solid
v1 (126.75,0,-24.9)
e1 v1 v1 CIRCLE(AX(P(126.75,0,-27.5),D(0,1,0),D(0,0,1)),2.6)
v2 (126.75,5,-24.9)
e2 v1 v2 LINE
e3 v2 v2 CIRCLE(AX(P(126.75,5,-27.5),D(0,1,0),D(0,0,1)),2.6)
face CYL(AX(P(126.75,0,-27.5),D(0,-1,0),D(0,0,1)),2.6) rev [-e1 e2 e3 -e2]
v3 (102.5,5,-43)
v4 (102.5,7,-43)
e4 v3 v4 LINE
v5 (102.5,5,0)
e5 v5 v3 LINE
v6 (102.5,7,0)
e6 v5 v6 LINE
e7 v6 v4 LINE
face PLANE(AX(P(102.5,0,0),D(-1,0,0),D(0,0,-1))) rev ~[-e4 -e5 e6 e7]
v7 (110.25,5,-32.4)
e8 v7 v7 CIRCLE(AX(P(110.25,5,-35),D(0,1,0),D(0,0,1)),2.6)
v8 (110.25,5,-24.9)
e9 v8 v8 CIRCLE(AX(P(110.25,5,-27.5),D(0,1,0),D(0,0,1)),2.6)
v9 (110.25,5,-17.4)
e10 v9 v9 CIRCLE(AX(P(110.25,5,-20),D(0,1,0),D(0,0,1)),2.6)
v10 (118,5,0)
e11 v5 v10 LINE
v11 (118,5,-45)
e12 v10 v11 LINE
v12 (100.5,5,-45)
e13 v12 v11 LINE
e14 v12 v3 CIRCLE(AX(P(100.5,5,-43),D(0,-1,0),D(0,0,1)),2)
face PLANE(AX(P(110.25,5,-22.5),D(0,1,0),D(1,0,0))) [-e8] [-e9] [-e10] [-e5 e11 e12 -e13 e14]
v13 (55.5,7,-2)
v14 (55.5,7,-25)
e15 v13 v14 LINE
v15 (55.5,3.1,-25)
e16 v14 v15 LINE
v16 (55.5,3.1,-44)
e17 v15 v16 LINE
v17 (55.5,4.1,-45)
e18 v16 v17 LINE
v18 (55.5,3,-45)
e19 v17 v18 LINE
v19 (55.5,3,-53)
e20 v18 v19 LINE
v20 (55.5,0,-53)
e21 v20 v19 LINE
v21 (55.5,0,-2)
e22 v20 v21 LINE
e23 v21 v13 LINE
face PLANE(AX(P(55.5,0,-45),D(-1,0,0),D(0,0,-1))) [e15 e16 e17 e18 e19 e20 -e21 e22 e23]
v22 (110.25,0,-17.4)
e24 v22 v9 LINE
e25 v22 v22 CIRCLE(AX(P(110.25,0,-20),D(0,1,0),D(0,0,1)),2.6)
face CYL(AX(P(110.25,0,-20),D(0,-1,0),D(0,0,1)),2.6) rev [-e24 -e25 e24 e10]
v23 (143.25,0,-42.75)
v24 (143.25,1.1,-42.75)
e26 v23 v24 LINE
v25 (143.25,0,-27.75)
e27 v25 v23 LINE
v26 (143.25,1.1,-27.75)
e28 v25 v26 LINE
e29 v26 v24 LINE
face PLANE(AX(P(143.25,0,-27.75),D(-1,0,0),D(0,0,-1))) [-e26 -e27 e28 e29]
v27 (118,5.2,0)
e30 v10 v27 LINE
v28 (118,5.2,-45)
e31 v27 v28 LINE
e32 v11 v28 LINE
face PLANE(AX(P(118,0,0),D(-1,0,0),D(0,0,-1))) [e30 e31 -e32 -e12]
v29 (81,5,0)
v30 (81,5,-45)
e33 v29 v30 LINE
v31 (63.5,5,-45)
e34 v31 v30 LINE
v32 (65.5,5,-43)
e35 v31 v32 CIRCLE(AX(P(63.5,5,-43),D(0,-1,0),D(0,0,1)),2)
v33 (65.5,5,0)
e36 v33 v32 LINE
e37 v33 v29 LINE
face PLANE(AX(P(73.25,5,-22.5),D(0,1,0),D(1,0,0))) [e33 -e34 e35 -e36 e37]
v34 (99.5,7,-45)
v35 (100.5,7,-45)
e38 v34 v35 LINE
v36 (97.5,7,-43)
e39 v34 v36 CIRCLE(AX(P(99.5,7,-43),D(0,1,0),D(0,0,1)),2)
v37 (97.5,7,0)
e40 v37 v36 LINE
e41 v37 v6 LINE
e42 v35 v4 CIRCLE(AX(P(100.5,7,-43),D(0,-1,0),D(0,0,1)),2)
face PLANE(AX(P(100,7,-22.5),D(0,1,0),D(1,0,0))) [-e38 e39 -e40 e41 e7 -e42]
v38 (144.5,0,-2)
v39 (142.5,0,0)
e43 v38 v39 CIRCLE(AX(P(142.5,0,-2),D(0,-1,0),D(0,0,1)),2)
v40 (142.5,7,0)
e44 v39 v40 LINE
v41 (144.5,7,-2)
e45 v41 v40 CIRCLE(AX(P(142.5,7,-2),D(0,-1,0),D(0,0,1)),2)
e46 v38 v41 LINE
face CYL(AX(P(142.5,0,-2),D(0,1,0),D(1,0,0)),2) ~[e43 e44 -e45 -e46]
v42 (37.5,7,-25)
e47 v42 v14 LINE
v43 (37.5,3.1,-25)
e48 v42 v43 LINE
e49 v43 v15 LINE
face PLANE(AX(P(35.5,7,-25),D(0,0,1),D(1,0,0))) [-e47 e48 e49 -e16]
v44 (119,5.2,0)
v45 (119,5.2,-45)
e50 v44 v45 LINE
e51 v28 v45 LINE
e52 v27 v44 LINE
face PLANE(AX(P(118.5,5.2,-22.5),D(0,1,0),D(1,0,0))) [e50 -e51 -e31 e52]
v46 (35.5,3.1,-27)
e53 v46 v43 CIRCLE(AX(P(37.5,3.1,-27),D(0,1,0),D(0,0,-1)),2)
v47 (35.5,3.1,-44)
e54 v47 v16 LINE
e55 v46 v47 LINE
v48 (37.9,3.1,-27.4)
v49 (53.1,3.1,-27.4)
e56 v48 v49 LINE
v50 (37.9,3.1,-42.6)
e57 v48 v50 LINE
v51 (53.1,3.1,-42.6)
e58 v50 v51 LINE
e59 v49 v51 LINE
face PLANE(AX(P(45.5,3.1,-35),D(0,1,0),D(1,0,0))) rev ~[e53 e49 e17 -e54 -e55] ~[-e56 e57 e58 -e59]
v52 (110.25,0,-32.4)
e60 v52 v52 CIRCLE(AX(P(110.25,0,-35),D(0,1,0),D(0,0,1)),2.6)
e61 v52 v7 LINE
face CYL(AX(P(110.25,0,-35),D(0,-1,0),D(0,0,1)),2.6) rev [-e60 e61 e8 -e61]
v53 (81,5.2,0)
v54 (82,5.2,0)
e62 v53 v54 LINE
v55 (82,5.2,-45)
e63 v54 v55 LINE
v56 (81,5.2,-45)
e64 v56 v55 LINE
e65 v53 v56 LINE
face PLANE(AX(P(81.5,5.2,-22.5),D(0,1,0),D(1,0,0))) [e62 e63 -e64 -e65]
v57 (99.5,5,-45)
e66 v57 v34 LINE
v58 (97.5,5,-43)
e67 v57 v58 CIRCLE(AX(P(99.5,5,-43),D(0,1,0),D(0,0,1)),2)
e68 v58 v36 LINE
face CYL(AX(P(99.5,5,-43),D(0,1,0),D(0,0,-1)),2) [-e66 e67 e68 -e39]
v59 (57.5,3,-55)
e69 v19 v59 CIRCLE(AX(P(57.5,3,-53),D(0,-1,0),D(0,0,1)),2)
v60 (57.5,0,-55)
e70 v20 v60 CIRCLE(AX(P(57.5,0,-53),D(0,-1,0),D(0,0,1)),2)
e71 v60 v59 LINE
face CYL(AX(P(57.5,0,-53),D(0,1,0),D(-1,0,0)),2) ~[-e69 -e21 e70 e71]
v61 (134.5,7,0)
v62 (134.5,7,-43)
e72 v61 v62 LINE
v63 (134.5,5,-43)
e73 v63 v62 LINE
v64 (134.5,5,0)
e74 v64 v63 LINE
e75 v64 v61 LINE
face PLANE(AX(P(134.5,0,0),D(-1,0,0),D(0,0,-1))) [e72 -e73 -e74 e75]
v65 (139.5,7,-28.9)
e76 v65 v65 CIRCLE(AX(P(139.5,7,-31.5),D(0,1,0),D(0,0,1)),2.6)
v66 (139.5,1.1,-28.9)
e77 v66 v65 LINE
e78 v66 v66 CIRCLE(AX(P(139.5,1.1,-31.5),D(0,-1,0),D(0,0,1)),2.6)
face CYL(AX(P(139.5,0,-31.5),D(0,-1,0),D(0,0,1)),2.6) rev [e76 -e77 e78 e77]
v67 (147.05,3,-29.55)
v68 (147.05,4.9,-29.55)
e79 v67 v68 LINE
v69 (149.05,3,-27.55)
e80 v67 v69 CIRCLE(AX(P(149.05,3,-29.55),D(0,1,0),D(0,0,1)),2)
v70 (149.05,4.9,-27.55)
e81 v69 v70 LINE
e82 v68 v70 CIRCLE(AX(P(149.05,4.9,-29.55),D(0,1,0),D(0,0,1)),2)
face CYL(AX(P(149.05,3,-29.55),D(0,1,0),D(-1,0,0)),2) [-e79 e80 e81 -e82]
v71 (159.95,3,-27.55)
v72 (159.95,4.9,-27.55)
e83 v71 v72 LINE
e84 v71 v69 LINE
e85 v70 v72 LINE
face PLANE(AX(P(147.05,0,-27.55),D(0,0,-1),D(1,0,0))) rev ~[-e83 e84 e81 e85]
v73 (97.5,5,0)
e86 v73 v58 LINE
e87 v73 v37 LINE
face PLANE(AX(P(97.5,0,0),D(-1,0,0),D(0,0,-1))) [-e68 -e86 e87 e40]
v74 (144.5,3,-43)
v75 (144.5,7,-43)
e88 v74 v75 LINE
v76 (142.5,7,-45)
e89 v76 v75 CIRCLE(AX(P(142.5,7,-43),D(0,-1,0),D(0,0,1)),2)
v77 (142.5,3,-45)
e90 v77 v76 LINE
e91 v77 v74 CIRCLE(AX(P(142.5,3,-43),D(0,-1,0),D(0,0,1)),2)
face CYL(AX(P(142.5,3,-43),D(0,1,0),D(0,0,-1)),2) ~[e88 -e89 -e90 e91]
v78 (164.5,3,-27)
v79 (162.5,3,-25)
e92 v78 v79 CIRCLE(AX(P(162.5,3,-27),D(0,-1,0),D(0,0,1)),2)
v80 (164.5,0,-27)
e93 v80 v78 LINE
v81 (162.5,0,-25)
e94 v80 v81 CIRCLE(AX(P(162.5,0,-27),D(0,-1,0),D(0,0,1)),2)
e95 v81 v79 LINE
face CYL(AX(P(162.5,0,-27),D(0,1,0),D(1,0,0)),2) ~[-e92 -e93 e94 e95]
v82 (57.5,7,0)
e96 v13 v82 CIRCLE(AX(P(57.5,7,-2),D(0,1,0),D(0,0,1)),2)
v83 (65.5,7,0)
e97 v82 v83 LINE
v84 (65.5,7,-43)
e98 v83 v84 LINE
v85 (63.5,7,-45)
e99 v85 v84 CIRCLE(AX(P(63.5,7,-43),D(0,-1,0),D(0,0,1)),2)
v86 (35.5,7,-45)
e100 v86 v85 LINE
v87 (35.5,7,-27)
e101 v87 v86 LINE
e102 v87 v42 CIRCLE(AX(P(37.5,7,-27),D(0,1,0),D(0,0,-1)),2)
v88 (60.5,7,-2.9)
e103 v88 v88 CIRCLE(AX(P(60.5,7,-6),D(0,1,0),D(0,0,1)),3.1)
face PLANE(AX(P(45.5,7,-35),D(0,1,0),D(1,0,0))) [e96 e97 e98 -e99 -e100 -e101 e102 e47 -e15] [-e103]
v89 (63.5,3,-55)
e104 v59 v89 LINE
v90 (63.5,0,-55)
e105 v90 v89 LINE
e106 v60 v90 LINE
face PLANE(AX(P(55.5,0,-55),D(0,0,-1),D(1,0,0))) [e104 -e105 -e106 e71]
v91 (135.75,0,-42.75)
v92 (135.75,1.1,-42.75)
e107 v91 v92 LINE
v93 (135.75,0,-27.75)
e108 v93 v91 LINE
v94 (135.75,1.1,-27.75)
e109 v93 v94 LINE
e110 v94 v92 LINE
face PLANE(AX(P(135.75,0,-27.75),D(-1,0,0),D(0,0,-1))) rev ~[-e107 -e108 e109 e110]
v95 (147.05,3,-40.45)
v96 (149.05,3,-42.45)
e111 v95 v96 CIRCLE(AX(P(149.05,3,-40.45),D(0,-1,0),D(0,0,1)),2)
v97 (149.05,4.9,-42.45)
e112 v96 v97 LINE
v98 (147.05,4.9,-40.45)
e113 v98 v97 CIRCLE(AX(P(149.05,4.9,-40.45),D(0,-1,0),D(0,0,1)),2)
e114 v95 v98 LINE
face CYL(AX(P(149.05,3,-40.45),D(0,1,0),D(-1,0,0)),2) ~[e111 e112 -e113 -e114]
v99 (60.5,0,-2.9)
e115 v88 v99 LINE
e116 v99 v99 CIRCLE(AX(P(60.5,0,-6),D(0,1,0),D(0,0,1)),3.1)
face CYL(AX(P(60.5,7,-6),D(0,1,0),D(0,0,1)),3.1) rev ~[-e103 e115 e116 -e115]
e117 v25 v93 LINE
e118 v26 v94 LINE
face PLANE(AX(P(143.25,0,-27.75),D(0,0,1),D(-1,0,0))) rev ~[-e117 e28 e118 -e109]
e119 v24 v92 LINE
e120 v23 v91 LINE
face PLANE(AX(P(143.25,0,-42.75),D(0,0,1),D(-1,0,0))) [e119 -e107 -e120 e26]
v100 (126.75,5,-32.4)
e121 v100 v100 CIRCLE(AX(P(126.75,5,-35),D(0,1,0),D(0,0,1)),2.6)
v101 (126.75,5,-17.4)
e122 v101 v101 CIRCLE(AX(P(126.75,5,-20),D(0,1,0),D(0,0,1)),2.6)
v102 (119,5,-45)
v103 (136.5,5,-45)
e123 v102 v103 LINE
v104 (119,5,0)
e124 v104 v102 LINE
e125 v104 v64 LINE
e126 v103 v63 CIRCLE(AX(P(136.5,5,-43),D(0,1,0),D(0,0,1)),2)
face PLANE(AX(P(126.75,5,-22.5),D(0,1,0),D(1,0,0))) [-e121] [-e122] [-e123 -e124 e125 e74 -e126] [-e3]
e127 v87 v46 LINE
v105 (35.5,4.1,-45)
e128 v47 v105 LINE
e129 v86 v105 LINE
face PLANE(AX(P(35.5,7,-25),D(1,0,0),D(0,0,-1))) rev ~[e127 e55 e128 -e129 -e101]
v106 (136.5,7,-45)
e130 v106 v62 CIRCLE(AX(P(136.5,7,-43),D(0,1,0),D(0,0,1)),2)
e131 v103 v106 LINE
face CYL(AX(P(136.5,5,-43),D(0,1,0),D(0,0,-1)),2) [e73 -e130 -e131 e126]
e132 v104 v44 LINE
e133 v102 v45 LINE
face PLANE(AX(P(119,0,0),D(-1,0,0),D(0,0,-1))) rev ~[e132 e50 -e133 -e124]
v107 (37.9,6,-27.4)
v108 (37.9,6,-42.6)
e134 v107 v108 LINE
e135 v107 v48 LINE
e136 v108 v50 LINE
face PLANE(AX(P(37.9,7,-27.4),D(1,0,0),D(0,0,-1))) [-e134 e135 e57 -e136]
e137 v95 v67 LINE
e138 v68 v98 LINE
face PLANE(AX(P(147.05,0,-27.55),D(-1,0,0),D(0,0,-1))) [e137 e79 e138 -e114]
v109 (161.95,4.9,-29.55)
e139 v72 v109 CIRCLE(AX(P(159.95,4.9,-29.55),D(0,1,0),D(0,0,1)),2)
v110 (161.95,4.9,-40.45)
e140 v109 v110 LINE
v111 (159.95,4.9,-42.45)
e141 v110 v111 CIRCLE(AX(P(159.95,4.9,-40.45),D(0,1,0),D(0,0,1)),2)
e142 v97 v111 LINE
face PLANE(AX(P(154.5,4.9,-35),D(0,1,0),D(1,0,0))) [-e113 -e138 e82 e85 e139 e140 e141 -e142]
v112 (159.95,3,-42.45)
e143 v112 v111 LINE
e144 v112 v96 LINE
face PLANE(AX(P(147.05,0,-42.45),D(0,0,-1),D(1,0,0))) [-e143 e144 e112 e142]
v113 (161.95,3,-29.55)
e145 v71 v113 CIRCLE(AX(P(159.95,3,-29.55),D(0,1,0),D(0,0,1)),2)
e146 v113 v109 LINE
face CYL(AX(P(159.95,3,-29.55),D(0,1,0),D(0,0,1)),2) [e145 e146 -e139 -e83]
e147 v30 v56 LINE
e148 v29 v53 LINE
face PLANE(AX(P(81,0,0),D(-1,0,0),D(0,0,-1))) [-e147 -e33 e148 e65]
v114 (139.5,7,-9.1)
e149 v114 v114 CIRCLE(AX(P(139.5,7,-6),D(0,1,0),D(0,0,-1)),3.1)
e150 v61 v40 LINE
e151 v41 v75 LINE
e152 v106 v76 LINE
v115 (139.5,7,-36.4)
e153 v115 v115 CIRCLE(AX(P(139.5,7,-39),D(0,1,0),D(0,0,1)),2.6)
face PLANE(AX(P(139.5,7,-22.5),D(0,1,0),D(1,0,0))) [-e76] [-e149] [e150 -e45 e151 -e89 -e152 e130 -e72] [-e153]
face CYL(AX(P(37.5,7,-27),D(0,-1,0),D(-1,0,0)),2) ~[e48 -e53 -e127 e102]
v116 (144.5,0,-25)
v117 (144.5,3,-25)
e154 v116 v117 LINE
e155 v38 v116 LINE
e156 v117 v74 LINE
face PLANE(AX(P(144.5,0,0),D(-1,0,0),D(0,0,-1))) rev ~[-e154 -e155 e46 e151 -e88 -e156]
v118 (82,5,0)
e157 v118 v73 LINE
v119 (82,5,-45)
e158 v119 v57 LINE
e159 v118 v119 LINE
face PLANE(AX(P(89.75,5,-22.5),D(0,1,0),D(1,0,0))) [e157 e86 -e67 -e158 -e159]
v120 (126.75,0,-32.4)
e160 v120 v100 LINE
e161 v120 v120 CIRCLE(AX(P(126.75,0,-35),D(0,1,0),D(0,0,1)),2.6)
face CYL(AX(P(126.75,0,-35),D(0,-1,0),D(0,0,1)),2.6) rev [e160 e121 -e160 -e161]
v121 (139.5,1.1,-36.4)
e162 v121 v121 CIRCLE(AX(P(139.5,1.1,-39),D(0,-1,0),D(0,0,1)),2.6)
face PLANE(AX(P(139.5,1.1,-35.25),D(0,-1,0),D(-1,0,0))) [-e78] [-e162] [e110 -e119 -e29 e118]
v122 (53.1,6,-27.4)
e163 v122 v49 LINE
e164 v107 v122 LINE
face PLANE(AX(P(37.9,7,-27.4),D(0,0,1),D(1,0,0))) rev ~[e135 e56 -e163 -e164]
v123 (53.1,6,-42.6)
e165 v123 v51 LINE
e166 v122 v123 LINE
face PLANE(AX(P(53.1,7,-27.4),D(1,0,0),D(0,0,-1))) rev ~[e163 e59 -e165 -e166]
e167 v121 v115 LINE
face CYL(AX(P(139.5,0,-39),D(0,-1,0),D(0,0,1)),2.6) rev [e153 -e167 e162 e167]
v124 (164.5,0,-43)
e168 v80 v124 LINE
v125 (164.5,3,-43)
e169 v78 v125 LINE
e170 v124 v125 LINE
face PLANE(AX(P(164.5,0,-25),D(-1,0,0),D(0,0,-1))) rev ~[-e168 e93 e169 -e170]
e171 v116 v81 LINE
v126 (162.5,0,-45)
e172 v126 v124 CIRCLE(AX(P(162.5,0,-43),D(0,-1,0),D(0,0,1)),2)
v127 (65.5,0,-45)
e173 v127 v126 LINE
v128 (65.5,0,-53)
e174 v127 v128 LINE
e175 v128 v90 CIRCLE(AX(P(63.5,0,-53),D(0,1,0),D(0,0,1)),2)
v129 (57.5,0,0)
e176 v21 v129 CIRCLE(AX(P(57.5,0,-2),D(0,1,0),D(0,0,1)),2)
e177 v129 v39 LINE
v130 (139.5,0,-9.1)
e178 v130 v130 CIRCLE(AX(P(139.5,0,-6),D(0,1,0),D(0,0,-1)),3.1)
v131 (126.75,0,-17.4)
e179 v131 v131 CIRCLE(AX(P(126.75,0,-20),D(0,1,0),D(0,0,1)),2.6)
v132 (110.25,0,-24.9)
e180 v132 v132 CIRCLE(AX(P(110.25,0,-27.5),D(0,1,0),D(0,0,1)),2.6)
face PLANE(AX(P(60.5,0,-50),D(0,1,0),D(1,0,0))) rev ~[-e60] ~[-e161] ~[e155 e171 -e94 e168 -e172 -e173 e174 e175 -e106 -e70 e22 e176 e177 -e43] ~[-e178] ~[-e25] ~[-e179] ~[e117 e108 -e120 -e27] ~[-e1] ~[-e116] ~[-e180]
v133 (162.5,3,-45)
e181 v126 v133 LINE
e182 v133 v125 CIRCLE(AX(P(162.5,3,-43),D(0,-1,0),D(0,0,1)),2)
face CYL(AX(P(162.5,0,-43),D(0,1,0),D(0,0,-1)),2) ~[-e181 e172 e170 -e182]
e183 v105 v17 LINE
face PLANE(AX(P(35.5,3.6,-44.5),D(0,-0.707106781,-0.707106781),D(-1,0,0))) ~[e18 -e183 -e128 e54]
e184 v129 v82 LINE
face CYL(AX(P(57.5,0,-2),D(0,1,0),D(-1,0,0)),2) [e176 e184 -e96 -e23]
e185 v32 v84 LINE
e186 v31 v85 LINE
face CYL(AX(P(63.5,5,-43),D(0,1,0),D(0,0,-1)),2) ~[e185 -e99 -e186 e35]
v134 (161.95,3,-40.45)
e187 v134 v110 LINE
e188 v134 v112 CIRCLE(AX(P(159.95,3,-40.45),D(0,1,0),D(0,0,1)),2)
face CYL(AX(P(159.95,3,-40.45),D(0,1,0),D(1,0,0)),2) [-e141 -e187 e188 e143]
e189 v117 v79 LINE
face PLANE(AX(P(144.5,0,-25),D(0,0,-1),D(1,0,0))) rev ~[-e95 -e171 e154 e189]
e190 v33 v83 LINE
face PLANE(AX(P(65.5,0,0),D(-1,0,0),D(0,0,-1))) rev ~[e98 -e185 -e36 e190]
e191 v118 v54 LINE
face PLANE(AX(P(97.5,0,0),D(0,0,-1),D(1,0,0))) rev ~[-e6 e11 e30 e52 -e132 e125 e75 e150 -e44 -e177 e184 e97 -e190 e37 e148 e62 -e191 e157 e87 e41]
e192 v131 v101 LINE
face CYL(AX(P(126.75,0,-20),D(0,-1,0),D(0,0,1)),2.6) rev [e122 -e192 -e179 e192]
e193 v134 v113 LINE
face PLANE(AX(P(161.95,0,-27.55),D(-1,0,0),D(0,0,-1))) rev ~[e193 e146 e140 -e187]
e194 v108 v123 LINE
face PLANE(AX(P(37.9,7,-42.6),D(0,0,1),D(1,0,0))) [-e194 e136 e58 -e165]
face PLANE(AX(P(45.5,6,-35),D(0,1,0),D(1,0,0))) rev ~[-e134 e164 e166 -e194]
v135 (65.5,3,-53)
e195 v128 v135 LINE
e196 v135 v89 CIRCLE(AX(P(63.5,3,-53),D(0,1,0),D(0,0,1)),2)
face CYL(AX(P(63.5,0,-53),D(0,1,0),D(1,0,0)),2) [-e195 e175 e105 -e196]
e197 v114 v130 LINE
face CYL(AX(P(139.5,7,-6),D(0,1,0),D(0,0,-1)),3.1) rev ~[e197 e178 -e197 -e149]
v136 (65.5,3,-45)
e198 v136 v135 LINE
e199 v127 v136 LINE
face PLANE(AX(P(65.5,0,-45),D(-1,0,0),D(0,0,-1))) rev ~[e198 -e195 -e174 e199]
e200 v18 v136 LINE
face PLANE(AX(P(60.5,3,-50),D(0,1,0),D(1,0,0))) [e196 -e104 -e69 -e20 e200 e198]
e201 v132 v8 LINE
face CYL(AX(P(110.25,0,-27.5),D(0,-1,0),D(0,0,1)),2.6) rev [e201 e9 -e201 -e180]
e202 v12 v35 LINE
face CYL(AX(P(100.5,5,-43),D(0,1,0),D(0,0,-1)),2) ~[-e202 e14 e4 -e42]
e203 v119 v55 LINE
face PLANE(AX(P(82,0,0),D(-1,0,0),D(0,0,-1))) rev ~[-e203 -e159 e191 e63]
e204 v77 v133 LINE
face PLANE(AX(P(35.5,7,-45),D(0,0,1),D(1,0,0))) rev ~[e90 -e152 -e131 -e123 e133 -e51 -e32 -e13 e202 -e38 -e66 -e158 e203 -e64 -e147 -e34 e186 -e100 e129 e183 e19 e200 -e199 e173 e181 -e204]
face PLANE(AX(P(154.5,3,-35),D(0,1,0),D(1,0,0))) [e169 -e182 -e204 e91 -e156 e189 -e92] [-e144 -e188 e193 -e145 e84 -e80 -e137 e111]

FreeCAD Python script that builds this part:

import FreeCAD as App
import Part
import Sketcher
Q = App.Units.Quantity


def edges_at(feature, points):
    """Names of the edges that pass closest to the given points."""
    edges = feature.Shape.Edges
    near = lambda p: min(range(len(edges)), key=lambda i: edges[i].distToShape(Part.Vertex(*p))[0])
    return sorted({f"Edge{near(p) + 1}" for p in points})

doc = App.newDocument("Part")
params = doc.addObject("Spreadsheet::Sheet", "Params")
for row, (alias, value) in enumerate([
    ("sketch1_height", "45 mm"),
    ("sketch1_width", "15.5 mm"),
    ("pad1_length", "5 mm"),
    ("sketch2_height", "45 mm"),
    ("sketch2_width", "15.5 mm"),
    ("pad2_length", "5 mm"),
    ("sketch3_diameter", "5.2 mm"),
    ("sketch3_height", "45 mm"),
    ("sketch3_width", "15.5 mm"),
    ("pad3_length", "5 mm"),
    ("sketch4_diameter", "5.2 mm"),
    ("sketch4_height", "45 mm"),
    ("sketch4_width", "15.5 mm"),
    ("pad4_length", "5 mm"),
    ("sketch5_width", "1 mm"),
    ("sketch5_height", "45 mm"),
    ("pad5_length", "5.2 mm"),
    ("sketch6_diameter", "5.2 mm"),
    ("sketch6_width", "5 mm"),
    ("sketch6_width2", "10 mm"),
    ("sketch6_height", "45 mm"),
    ("pad6_length", "7 mm"),
    ("sketch7_height", "15 mm"),
    ("sketch7_width", "7.5 mm"),
    ("pocket1_length", "1.1 mm"),
    ("sketch8_diameter", "6.2 mm"),
    ("sketch9_width", "20 mm"),
    ("pad7_length", "3 mm"),
    ("sketch10_width", "14.9 mm"),
    ("pad8_length", "4.9 mm"),
    ("sketch11_width", "20 mm"),
    ("sketch11_width2", "15.2 mm"),
    ("pad9_length", "3.9 mm"),
    ("sketch12_width", "15.2 mm"),
    ("pad10_length", "1 mm"),
    ("fillet_radius", "2 mm"),
    ("sketch13_width", "10 mm"),
    ("pad11_length", "3 mm"),
    ("fillet2_radius", "2 mm"),
    ("chamfer_size", "1 mm"),
], start=1):
    params.set(f"A{row}", alias)
    params.set(f"B{row}", "=" + value)
    params.setAlias(f"B{row}", alias)

body = doc.addObject("PartDesign::Body", "Body")

# Sketch on XZ plane
sketch1 = doc.addObject("Sketcher::SketchObject", "Sketch")
body.addObject(sketch1)
sketch1.AttachmentSupport = (doc.XZ_Plane, [""])
sketch1.MapMode = "FlatFace"
sketch1.addGeometry(Part.LineSegment(App.Vector(66, -45, 0), App.Vector(66, 0, 0)), False)
sketch1.addGeometry(Part.LineSegment(App.Vector(66, 0, 0), App.Vector(81, 0, 0)), False)
sketch1.addGeometry(Part.LineSegment(App.Vector(81, 0, 0), App.Vector(81, -45, 0)), False)
sketch1.addGeometry(Part.LineSegment(App.Vector(81, -45, 0), App.Vector(66, -45, 0)), False)
sketch1.addConstraint(Sketcher.Constraint("Coincident", 0, 2, 1, 1))
sketch1.addConstraint(Sketcher.Constraint("Coincident", 1, 2, 2, 1))
sketch1.addConstraint(Sketcher.Constraint("Coincident", 2, 2, 3, 1))
sketch1.addConstraint(Sketcher.Constraint("Coincident", 3, 2, 0, 1))
sketch1.addConstraint(Sketcher.Constraint("Vertical", 0))
sketch1.addConstraint(Sketcher.Constraint("Horizontal", 1))
sketch1.addConstraint(Sketcher.Constraint("Vertical", 2))
sketch1.addConstraint(Sketcher.Constraint("Horizontal", 3))
sketch1.addConstraint(Sketcher.Constraint("PointOnObject", 0, 2, -1))
sketch1.addConstraint(Sketcher.Constraint("DistanceY", 0, 1, 0, 2, Q("45 mm")))
sketch1.addConstraint(Sketcher.Constraint("DistanceX", 1, 1, 1, 2, Q("15.5 mm")))
sketch1.addConstraint(Sketcher.Constraint("DistanceX", -1, 1, 1, 2, Q("81 mm")))
sketch1.setExpression("Constraints[9]", "Params.sketch1_height")
sketch1.setExpression("Constraints[10]", "Params.sketch1_width")
pad1 = doc.addObject("PartDesign::Pad", "Pad")
body.addObject(pad1)
pad1.Profile = sketch1
pad1.setExpression("Length", "Params.pad1_length")
pad1.Reversed = True
body2 = doc.addObject("PartDesign::Body", "Body001")

# Sketch on XZ plane
sketch2 = doc.addObject("Sketcher::SketchObject", "Sketch001")
body2.addObject(sketch2)
sketch2.AttachmentSupport = (doc.getObject("XZ_Plane001"), [""])
sketch2.MapMode = "FlatFace"
sketch2.addGeometry(Part.LineSegment(App.Vector(82, -45, 0), App.Vector(82, 0, 0)), False)
sketch2.addGeometry(Part.LineSegment(App.Vector(82, 0, 0), App.Vector(98, 0, 0)), False)
sketch2.addGeometry(Part.LineSegment(App.Vector(98, 0, 0), App.Vector(98, -45, 0)), False)
sketch2.addGeometry(Part.LineSegment(App.Vector(98, -45, 0), App.Vector(82, -45, 0)), False)
sketch2.addConstraint(Sketcher.Constraint("Coincident", 0, 2, 1, 1))
sketch2.addConstraint(Sketcher.Constraint("Coincident", 1, 2, 2, 1))
sketch2.addConstraint(Sketcher.Constraint("Coincident", 2, 2, 3, 1))
sketch2.addConstraint(Sketcher.Constraint("Coincident", 3, 2, 0, 1))
sketch2.addConstraint(Sketcher.Constraint("Vertical", 0))
sketch2.addConstraint(Sketcher.Constraint("Horizontal", 1))
sketch2.addConstraint(Sketcher.Constraint("Vertical", 2))
sketch2.addConstraint(Sketcher.Constraint("Horizontal", 3))
sketch2.addConstraint(Sketcher.Constraint("PointOnObject", 0, 2, -1))
sketch2.addConstraint(Sketcher.Constraint("DistanceY", 0, 1, 0, 2, Q("45 mm")))
sketch2.addConstraint(Sketcher.Constraint("DistanceX", 1, 1, 1, 2, Q("15.5 mm")))
sketch2.addConstraint(Sketcher.Constraint("DistanceX", -1, 1, 0, 2, Q("82 mm")))
sketch2.setExpression("Constraints[9]", "Params.sketch2_height")
sketch2.setExpression("Constraints[10]", "Params.sketch2_width")
pad2 = doc.addObject("PartDesign::Pad", "Pad001")
body2.addObject(pad2)
pad2.Profile = sketch2
pad2.setExpression("Length", "Params.pad2_length")
pad2.Reversed = True
body3 = doc.addObject("PartDesign::Body", "Body002")

# Sketch on XZ plane
sketch3 = doc.addObject("Sketcher::SketchObject", "Sketch002")
body3.addObject(sketch3)
sketch3.AttachmentSupport = (doc.getObject("XZ_Plane002"), [""])
sketch3.MapMode = "FlatFace"
sketch3.addGeometry(Part.LineSegment(App.Vector(102.5, -45, 0), App.Vector(102.5, 0, 0)), False)
sketch3.addGeometry(Part.LineSegment(App.Vector(102.5, 0, 0), App.Vector(118, 0, 0)), False)
sketch3.addGeometry(Part.LineSegment(App.Vector(118, 0, 0), App.Vector(118, -45, 0)), False)
sketch3.addGeometry(Part.LineSegment(App.Vector(118, -45, 0), App.Vector(102.5, -45, 0)), False)
sketch3.addGeometry(Part.Circle(App.Vector(110.2, -20, 0), App.Vector(0, 0, 1), 2.6), False)
sketch3.addGeometry(Part.Circle(App.Vector(110.2, -27.5, 0), App.Vector(0, 0, 1), 2.6), False)
sketch3.addGeometry(Part.Circle(App.Vector(110.2, -35, 0), App.Vector(0, 0, 1), 2.6), False)
sketch3.addConstraint(Sketcher.Constraint("Coincident", 0, 2, 1, 1))
sketch3.addConstraint(Sketcher.Constraint("Coincident", 1, 2, 2, 1))
sketch3.addConstraint(Sketcher.Constraint("Coincident", 2, 2, 3, 1))
sketch3.addConstraint(Sketcher.Constraint("Coincident", 3, 2, 0, 1))
sketch3.addConstraint(Sketcher.Constraint("Vertical", 0))
sketch3.addConstraint(Sketcher.Constraint("Horizontal", 1))
sketch3.addConstraint(Sketcher.Constraint("Vertical", 2))
sketch3.addConstraint(Sketcher.Constraint("Horizontal", 3))
sketch3.addConstraint(Sketcher.Constraint("Equal", 4, 5))
sketch3.addConstraint(Sketcher.Constraint("Equal", 5, 6))
sketch3.addConstraint(Sketcher.Constraint("PointOnObject", 0, 2, -1))
sketch3.addConstraint(Sketcher.Constraint("Vertical", 4, 3, 5, 3))
sketch3.addConstraint(Sketcher.Constraint("Vertical", 5, 3, 6, 3))
sketch3.addConstraint(Sketcher.Constraint("Diameter", 4, Q("5.2 mm")))
sketch3.addConstraint(Sketcher.Constraint("DistanceY", 0, 1, 0, 2, Q("45 mm")))
sketch3.addConstraint(Sketcher.Constraint("DistanceX", 1, 1, 1, 2, Q("15.5 mm")))
sketch3.addConstraint(Sketcher.Constraint("DistanceY", 4, 3, -1, 1, Q("20 mm")))
sketch3.addConstraint(Sketcher.Constraint("DistanceY", 6, 3, -1, 1, Q("35 mm")))
sketch3.addConstraint(Sketcher.Constraint("DistanceX", -1, 1, 1, 2, Q("118 mm")))
sketch3.addConstraint(Sketcher.Constraint("DistanceY", 5, 3, -1, 1, Q("27.5 mm")))
sketch3.addConstraint(Sketcher.Constraint("DistanceX", -1, 1, 4, 3, Q("110.25 mm")))
sketch3.setExpression("Constraints[13]", "Params.sketch3_diameter")
sketch3.setExpression("Constraints[14]", "Params.sketch3_height")
sketch3.setExpression("Constraints[15]", "Params.sketch3_width")
pad3 = doc.addObject("PartDesign::Pad", "Pad002")
body3.addObject(pad3)
pad3.Profile = sketch3
pad3.setExpression("Length", "Params.pad3_length")
pad3.Reversed = True
body4 = doc.addObject("PartDesign::Body", "Body003")

# Sketch on XZ plane
sketch4 = doc.addObject("Sketcher::SketchObject", "Sketch003")
body4.addObject(sketch4)
sketch4.AttachmentSupport = (doc.getObject("XZ_Plane003"), [""])
sketch4.MapMode = "FlatFace"
sketch4.addGeometry(Part.LineSegment(App.Vector(119, -45, 0), App.Vector(119, 0, 0)), False)
sketch4.addGeometry(Part.LineSegment(App.Vector(119, 0, 0), App.Vector(134.5, 0, 0)), False)
sketch4.addGeometry(Part.LineSegment(App.Vector(134.5, 0, 0), App.Vector(134.5, -45, 0)), False)
sketch4.addGeometry(Part.LineSegment(App.Vector(134.5, -45, 0), App.Vector(119, -45, 0)), False)
sketch4.addGeometry(Part.Circle(App.Vector(126.8, -20, 0), App.Vector(0, 0, 1), 2.6), False)
sketch4.addGeometry(Part.Circle(App.Vector(126.8, -27.5, 0), App.Vector(0, 0, 1), 2.6), False)
sketch4.addGeometry(Part.Circle(App.Vector(126.8, -35, 0), App.Vector(0, 0, 1), 2.6), False)
sketch4.addConstraint(Sketcher.Constraint("Coincident", 0, 2, 1, 1))
sketch4.addConstraint(Sketcher.Constraint("Coincident", 1, 2, 2, 1))
sketch4.addConstraint(Sketcher.Constraint("Coincident", 2, 2, 3, 1))
sketch4.addConstraint(Sketcher.Constraint("Coincident", 3, 2, 0, 1))
sketch4.addConstraint(Sketcher.Constraint("Vertical", 0))
sketch4.addConstraint(Sketcher.Constraint("Horizontal", 1))
sketch4.addConstraint(Sketcher.Constraint("Vertical", 2))
sketch4.addConstraint(Sketcher.Constraint("Horizontal", 3))
sketch4.addConstraint(Sketcher.Constraint("Equal", 4, 5))
sketch4.addConstraint(Sketcher.Constraint("Equal", 5, 6))
sketch4.addConstraint(Sketcher.Constraint("PointOnObject", 0, 2, -1))
sketch4.addConstraint(Sketcher.Constraint("Vertical", 4, 3, 5, 3))
sketch4.addConstraint(Sketcher.Constraint("Vertical", 5, 3, 6, 3))
sketch4.addConstraint(Sketcher.Constraint("Diameter", 4, Q("5.2 mm")))
sketch4.addConstraint(Sketcher.Constraint("DistanceY", 0, 1, 0, 2, Q("45 mm")))
sketch4.addConstraint(Sketcher.Constraint("DistanceX", 1, 1, 1, 2, Q("15.5 mm")))
sketch4.addConstraint(Sketcher.Constraint("DistanceY", 4, 3, -1, 1, Q("20 mm")))
sketch4.addConstraint(Sketcher.Constraint("DistanceY", 6, 3, -1, 1, Q("35 mm")))
sketch4.addConstraint(Sketcher.Constraint("DistanceX", -1, 1, 0, 2, Q("119 mm")))
sketch4.addConstraint(Sketcher.Constraint("DistanceY", 5, 3, -1, 1, Q("27.5 mm")))
sketch4.addConstraint(Sketcher.Constraint("DistanceX", -1, 1, 4, 3, Q("126.75 mm")))
sketch4.setExpression("Constraints[13]", "Params.sketch4_diameter")
sketch4.setExpression("Constraints[14]", "Params.sketch4_height")
sketch4.setExpression("Constraints[15]", "Params.sketch4_width")
pad4 = doc.addObject("PartDesign::Pad", "Pad003")
body4.addObject(pad4)
pad4.Profile = sketch4
pad4.setExpression("Length", "Params.pad4_length")
pad4.Reversed = True
body.AllowCompound = True
doc.recompute()

boolean = doc.addObject("PartDesign::Boolean", "Boolean")
body.addObject(boolean)
boolean.Type = "Fuse"
boolean.addObjects([body2])
doc.recompute()

boolean2 = doc.addObject("PartDesign::Boolean", "Boolean001")
body.addObject(boolean2)
boolean2.Type = "Fuse"
boolean2.addObjects([body3])
doc.recompute()

boolean3 = doc.addObject("PartDesign::Boolean", "Boolean002")
body.addObject(boolean3)
boolean3.Type = "Fuse"
boolean3.addObjects([body4])

# Sketch on XZ plane
sketch5 = doc.addObject("Sketcher::SketchObject", "Sketch004")
body.addObject(sketch5)
sketch5.AttachmentSupport = (doc.XZ_Plane, [""])
sketch5.MapMode = "FlatFace"
sketch5.addGeometry(Part.LineSegment(App.Vector(81, -45, 0), App.Vector(81, 0, 0)), False)
sketch5.addGeometry(Part.LineSegment(App.Vector(81, 0, 0), App.Vector(82, 0, 0)), False)
sketch5.addGeometry(Part.LineSegment(App.Vector(82, 0, 0), App.Vector(82, -45, 0)), False)
sketch5.addGeometry(Part.LineSegment(App.Vector(82, -45, 0), App.Vector(81, -45, 0)), False)
sketch5.addGeometry(Part.LineSegment(App.Vector(118, -45, 0), App.Vector(118, 0, 0)), False)
sketch5.addGeometry(Part.LineSegment(App.Vector(118, 0, 0), App.Vector(119, 0, 0)), False)
sketch5.addGeometry(Part.LineSegment(App.Vector(119, 0, 0), App.Vector(119, -45, 0)), False)
sketch5.addGeometry(Part.LineSegment(App.Vector(119, -45, 0), App.Vector(118, -45, 0)), False)
sketch5.addConstraint(Sketcher.Constraint("Coincident", 0, 2, 1, 1))
sketch5.addConstraint(Sketcher.Constraint("Coincident", 1, 2, 2, 1))
sketch5.addConstraint(Sketcher.Constraint("Coincident", 2, 2, 3, 1))
sketch5.addConstraint(Sketcher.Constraint("Coincident", 3, 2, 0, 1))
sketch5.addConstraint(Sketcher.Constraint("Coincident", 4, 2, 5, 1))
sketch5.addConstraint(Sketcher.Constraint("Coincident", 5, 2, 6, 1))
sketch5.addConstraint(Sketcher.Constraint("Coincident", 6, 2, 7, 1))
sketch5.addConstraint(Sketcher.Constraint("Coincident", 7, 2, 4, 1))
sketch5.addConstraint(Sketcher.Constraint("Vertical", 0))
sketch5.addConstraint(Sketcher.Constraint("Horizontal", 1))
sketch5.addConstraint(Sketcher.Constraint("Vertical", 2))
sketch5.addConstraint(Sketcher.Constraint("Horizontal", 3))
sketch5.addConstraint(Sketcher.Constraint("Vertical", 4))
sketch5.addConstraint(Sketcher.Constraint("Horizontal", 5))
sketch5.addConstraint(Sketcher.Constraint("Vertical", 6))
sketch5.addConstraint(Sketcher.Constraint("Horizontal", 7))
sketch5.addConstraint(Sketcher.Constraint("PointOnObject", 0, 2, -1))
sketch5.addConstraint(Sketcher.Constraint("PointOnObject", 4, 2, -1))
sketch5.addConstraint(Sketcher.Constraint("Horizontal", 3, 2, 6, 2))
sketch5.addConstraint(Sketcher.Constraint("Equal", 3, 5))
sketch5.addConstraint(Sketcher.Constraint("DistanceX", 1, 1, 1, 2, Q("1 mm")))
sketch5.addConstraint(Sketcher.Constraint("DistanceY", 0, 1, 0, 2, Q("45 mm")))
sketch5.addConstraint(Sketcher.Constraint("DistanceX", -1, 1, 0, 2, Q("81 mm")))
sketch5.addConstraint(Sketcher.Constraint("DistanceX", -1, 1, 4, 2, Q("118 mm")))
sketch5.setExpression("Constraints[20]", "Params.sketch5_width")
sketch5.setExpression("Constraints[21]", "Params.sketch5_height")
pad5 = doc.addObject("PartDesign::Pad", "Pad004")
body.addObject(pad5)
pad5.Profile = sketch5
pad5.setExpression("Length", "Params.pad5_length")
pad5.Reversed = True

# Sketch on XZ plane
sketch6 = doc.addObject("Sketcher::SketchObject", "Sketch005")
body.addObject(sketch6)
sketch6.AttachmentSupport = (doc.XZ_Plane, [""])
sketch6.MapMode = "FlatFace"
sketch6.addGeometry(Part.LineSegment(App.Vector(97.5, -45, 0), App.Vector(97.5, 0, 0)), False)
sketch6.addGeometry(Part.LineSegment(App.Vector(97.5, 0, 0), App.Vector(102.5, 0, 0)), False)
sketch6.addGeometry(Part.LineSegment(App.Vector(102.5, 0, 0), App.Vector(102.5, -45, 0)), False)
sketch6.addGeometry(Part.LineSegment(App.Vector(102.5, -45, 0), App.Vector(97.5, -45, 0)), False)
sketch6.addGeometry(Part.LineSegment(App.Vector(134.5, -45, 0), App.Vector(134.5, 0, 0)), False)
sketch6.addGeometry(Part.LineSegment(App.Vector(134.5, 0, 0), App.Vector(144.5, 0, 0)), False)
sketch6.addGeometry(Part.LineSegment(App.Vector(144.5, 0, 0), App.Vector(144.5, -45, 0)), False)
sketch6.addGeometry(Part.LineSegment(App.Vector(144.5, -45, 0), App.Vector(134.5, -45, 0)), False)
sketch6.addGeometry(Part.Circle(App.Vector(139.5, -31.5, 0), App.Vector(0, 0, 1), 2.6), False)
sketch6.addGeometry(Part.Circle(App.Vector(139.5, -39, 0), App.Vector(0, 0, 1), 2.6), False)
sketch6.addGeometry(Part.LineSegment(App.Vector(55.5, -45, 0), App.Vector(55.5, 0, 0)), False)
sketch6.addGeometry(Part.LineSegment(App.Vector(55.5, 0, 0), App.Vector(65.5, 0, 0)), False)
sketch6.addGeometry(Part.LineSegment(App.Vector(65.5, 0, 0), App.Vector(65.5, -45, 0)), False)
sketch6.addGeometry(Part.LineSegment(App.Vector(65.5, -45, 0), App.Vector(55.5, -45, 0)), False)
sketch6.addConstraint(Sketcher.Constraint("Coincident", 0, 2, 1, 1))
sketch6.addConstraint(Sketcher.Constraint("Coincident", 1, 2, 2, 1))
sketch6.addConstraint(Sketcher.Constraint("Coincident", 2, 2, 3, 1))
sketch6.addConstraint(Sketcher.Constraint("Coincident", 3, 2, 0, 1))
sketch6.addConstraint(Sketcher.Constraint("Coincident", 4, 2, 5, 1))
sketch6.addConstraint(Sketcher.Constraint("Coincident", 5, 2, 6, 1))
sketch6.addConstraint(Sketcher.Constraint("Coincident", 6, 2, 7, 1))
sketch6.addConstraint(Sketcher.Constraint("Coincident", 7, 2, 4, 1))
sketch6.addConstraint(Sketcher.Constraint("Coincident", 10, 2, 11, 1))
sketch6.addConstraint(Sketcher.Constraint("Coincident", 11, 2, 12, 1))
sketch6.addConstraint(Sketcher.Constraint("Coincident", 12, 2, 13, 1))
sketch6.addConstraint(Sketcher.Constraint("Coincident", 13, 2, 10, 1))
sketch6.addConstraint(Sketcher.Constraint("Vertical", 0))
sketch6.addConstraint(Sketcher.Constraint("Horizontal", 1))
sketch6.addConstraint(Sketcher.Constraint("Vertical", 2))
sketch6.addConstraint(Sketcher.Constraint("Horizontal", 3))
sketch6.addConstraint(Sketcher.Constraint("Vertical", 4))
sketch6.addConstraint(Sketcher.Constraint("Horizontal", 5))
sketch6.addConstraint(Sketcher.Constraint("Vertical", 6))
sketch6.addConstraint(Sketcher.Constraint("Horizontal", 7))
sketch6.addConstraint(Sketcher.Constraint("Vertical", 10))
sketch6.addConstraint(Sketcher.Constraint("Horizontal", 11))
sketch6.addConstraint(Sketcher.Constraint("Vertical", 12))
sketch6.addConstraint(Sketcher.Constraint("Horizontal", 13))
sketch6.addConstraint(Sketcher.Constraint("Equal", 8, 9))
sketch6.addConstraint(Sketcher.Constraint("PointOnObject", 0, 2, -1))
sketch6.addConstraint(Sketcher.Constraint("PointOnObject", 4, 2, -1))
sketch6.addConstraint(Sketcher.Constraint("PointOnObject", 10, 2, -1))
sketch6.addConstraint(Sketcher.Constraint("Horizontal", 3, 2, 6, 2))
sketch6.addConstraint(Sketcher.Constraint("Horizontal", 7, 2, 12, 2))
sketch6.addConstraint(Sketcher.Constraint("Vertical", 8, 3, 9, 3))
sketch6.addConstraint(Sketcher.Constraint("Equal", 7, 11))
sketch6.addConstraint(Sketcher.Constraint("Diameter", 8, Q("5.2 mm")))
sketch6.addConstraint(Sketcher.Constraint("DistanceX", 1, 1, 1, 2, Q("5 mm")))
sketch6.addConstraint(Sketcher.Constraint("DistanceX", 5, 1, 5, 2, Q("10 mm")))
sketch6.addConstraint(Sketcher.Constraint("DistanceY", 0, 1, 0, 2, Q("45 mm")))
sketch6.addConstraint(Sketcher.Constraint("DistanceY", 9, 3, -1, 1, Q("39 mm")))
sketch6.addConstraint(Sketcher.Constraint("DistanceX", 0, 2, 8, 3, Q("42 mm")))
sketch6.addConstraint(Sketcher.Constraint("DistanceX", 4, 2, 8, 3, Q("5 mm")))
sketch6.addConstraint(Sketcher.Constraint("DistanceX", 10, 2, 0, 2, Q("42 mm")))
sketch6.addConstraint(Sketcher.Constraint("DistanceX", -1, 1, 8, 3, Q("139.5 mm")))
sketch6.addConstraint(Sketcher.Constraint("DistanceY", 8, 3, -1, 1, Q("31.5 mm")))
sketch6.setExpression("Constraints[32]", "Params.sketch6_diameter")
sketch6.setExpression("Constraints[33]", "Params.sketch6_width")
sketch6.setExpression("Constraints[34]", "Params.sketch6_width2")
sketch6.setExpression("Constraints[35]", "Params.sketch6_height")
pad6 = doc.addObject("PartDesign::Pad", "Pad005")
body.addObject(pad6)
pad6.Profile = sketch6
pad6.setExpression("Length", "Params.pad6_length")
pad6.Reversed = True

# Sketch on XZ plane
sketch7 = doc.addObject("Sketcher::SketchObject", "Sketch006")
body.addObject(sketch7)
sketch7.AttachmentSupport = (doc.XZ_Plane, [""])
sketch7.MapMode = "FlatFace"
sketch7.addGeometry(Part.LineSegment(App.Vector(143, -43, 0), App.Vector(143, -28, 0)), False)
sketch7.addGeometry(Part.LineSegment(App.Vector(143, -28, 0), App.Vector(136, -28, 0)), False)
sketch7.addGeometry(Part.LineSegment(App.Vector(136, -28, 0), App.Vector(136, -43, 0)), False)
sketch7.addGeometry(Part.LineSegment(App.Vector(136, -43, 0), App.Vector(143, -43, 0)), False)
sketch7.addConstraint(Sketcher.Constraint("Coincident", 0, 2, 1, 1))
sketch7.addConstraint(Sketcher.Constraint("Coincident", 1, 2, 2, 1))
sketch7.addConstraint(Sketcher.Constraint("Coincident", 2, 2, 3, 1))
sketch7.addConstraint(Sketcher.Constraint("Coincident", 3, 2, 0, 1))
sketch7.addConstraint(Sketcher.Constraint("Vertical", 0))
sketch7.addConstraint(Sketcher.Constraint("Horizontal", 1))
sketch7.addConstraint(Sketcher.Constraint("Vertical", 2))
sketch7.addConstraint(Sketcher.Constraint("Horizontal", 3))
sketch7.addConstraint(Sketcher.Constraint("DistanceY", 0, 1, 0, 2, Q("15 mm")))
sketch7.addConstraint(Sketcher.Constraint("DistanceX", 1, 2, 1, 1, Q("7.5 mm")))
sketch7.addConstraint(Sketcher.Constraint("DistanceX", -1, 1, 0, 2, Q("143.25 mm")))
sketch7.addConstraint(Sketcher.Constraint("DistanceY", 0, 2, -1, 1, Q("27.75 mm")))
sketch7.setExpression("Constraints[8]", "Params.sketch7_height")
sketch7.setExpression("Constraints[9]", "Params.sketch7_width")
pocket1 = doc.addObject("PartDesign::Pocket", "Pocket")
body.addObject(pocket1)
pocket1.Profile = sketch7
pocket1.setExpression("Length", "Params.pocket1_length")

# Sketch on XZ plane
sketch8 = doc.addObject("Sketcher::SketchObject", "Sketch007")
body.addObject(sketch8)
sketch8.AttachmentSupport = (doc.XZ_Plane, [""])
sketch8.MapMode = "FlatFace"
sketch8.AttachmentOffset = App.Placement(App.Vector(0, 0, -7), App.Rotation())
sketch8.addGeometry(Part.Circle(App.Vector(60.5, -6, 0), App.Vector(0, 0, 1), 3.1), False)
sketch8.addGeometry(Part.Circle(App.Vector(139.5, -6, 0), App.Vector(0, 0, 1), 3.1), False)
sketch8.addConstraint(Sketcher.Constraint("Equal", 0, 1))
sketch8.addConstraint(Sketcher.Constraint("Horizontal", 0, 3, 1, 3))
sketch8.addConstraint(Sketcher.Constraint("Diameter", 0, Q("6.2 mm")))
sketch8.addConstraint(Sketcher.Constraint("DistanceY", 0, 3, -1, 1, Q("6 mm")))
sketch8.addConstraint(Sketcher.Constraint("DistanceX", 0, 3, 1, 3, Q("79 mm")))
sketch8.addConstraint(Sketcher.Constraint("DistanceX", -1, 1, 0, 3, Q("60.5 mm")))
sketch8.setExpression("Constraints[2]", "Params.sketch8_diameter")
pocket2 = doc.addObject("PartDesign::Pocket", "Pocket001")
body.addObject(pocket2)
pocket2.Profile = sketch8
pocket2.Type = "ThroughAll"
pocket2.Reversed = True

# Sketch on XZ plane
sketch9 = doc.addObject("Sketcher::SketchObject", "Sketch008")
body.addObject(sketch9)
sketch9.AttachmentSupport = (doc.XZ_Plane, [""])
sketch9.MapMode = "FlatFace"
sketch9.addGeometry(Part.LineSegment(App.Vector(144, -45, 0), App.Vector(144, -25, 0)), False)
sketch9.addGeometry(Part.LineSegment(App.Vector(144, -25, 0), App.Vector(164, -25, 0)), False)
sketch9.addGeometry(Part.LineSegment(App.Vector(164, -25, 0), App.Vector(164, -45, 0)), False)
sketch9.addGeometry(Part.LineSegment(App.Vector(164, -45, 0), App.Vector(144, -45, 0)), False)
sketch9.addConstraint(Sketcher.Constraint("Coincident", 0, 2, 1, 1))
sketch9.addConstraint(Sketcher.Constraint("Coincident", 1, 2, 2, 1))
sketch9.addConstraint(Sketcher.Constraint("Coincident", 2, 2, 3, 1))
sketch9.addConstraint(Sketcher.Constraint("Coincident", 3, 2, 0, 1))
sketch9.addConstraint(Sketcher.Constraint("Vertical", 0))
sketch9.addConstraint(Sketcher.Constraint("Horizontal", 1))
sketch9.addConstraint(Sketcher.Constraint("Vertical", 2))
sketch9.addConstraint(Sketcher.Constraint("Horizontal", 3))
sketch9.addConstraint(Sketcher.Constraint("Equal", 3, 0))
sketch9.addConstraint(Sketcher.Constraint("DistanceX", 1, 1, 1, 2, Q("20 mm")))
sketch9.addConstraint(Sketcher.Constraint("DistanceY", 0, 2, -1, 1, Q("25 mm")))
sketch9.addConstraint(Sketcher.Constraint("DistanceX", -1, 1, 0, 2, Q("144.5 mm")))
sketch9.setExpression("Constraints[9]", "Params.sketch9_width")
pad7 = doc.addObject("PartDesign::Pad", "Pad006")
body.addObject(pad7)
pad7.Profile = sketch9
pad7.setExpression("Length", "Params.pad7_length")
pad7.Reversed = True

# Sketch on XZ plane
sketch10 = doc.addObject("Sketcher::SketchObject", "Sketch009")
body.addObject(sketch10)
sketch10.AttachmentSupport = (doc.XZ_Plane, [""])
sketch10.MapMode = "FlatFace"
sketch10.addGeometry(Part.LineSegment(App.Vector(147, -42, 0), App.Vector(147, -28, 0)), False)
sketch10.addGeometry(Part.LineSegment(App.Vector(147, -28, 0), App.Vector(162, -28, 0)), False)
sketch10.addGeometry(Part.LineSegment(App.Vector(162, -28, 0), App.Vector(162, -42, 0)), False)
sketch10.addGeometry(Part.LineSegment(App.Vector(162, -42, 0), App.Vector(147, -42, 0)), False)
sketch10.addConstraint(Sketcher.Constraint("Coincident", 0, 2, 1, 1))
sketch10.addConstraint(Sketcher.Constraint("Coincident", 1, 2, 2, 1))
sketch10.addConstraint(Sketcher.Constraint("Coincident", 2, 2, 3, 1))
sketch10.addConstraint(Sketcher.Constraint("Coincident", 3, 2, 0, 1))
sketch10.addConstraint(Sketcher.Constraint("Vertical", 0))
sketch10.addConstraint(Sketcher.Constraint("Horizontal", 1))
sketch10.addConstraint(Sketcher.Constraint("Vertical", 2))
sketch10.addConstraint(Sketcher.Constraint("Horizontal", 3))
sketch10.addConstraint(Sketcher.Constraint("Equal", 3, 0))
sketch10.addConstraint(Sketcher.Constraint("DistanceX", 1, 1, 1, 2, Q("14.9 mm")))
sketch10.addConstraint(Sketcher.Constraint("DistanceX", -1, 1, 0, 2, Q("147.05 mm")))
sketch10.addConstraint(Sketcher.Constraint("DistanceY", 0, 2, -1, 1, Q("27.55 mm")))
sketch10.setExpression("Constraints[9]", "Params.sketch10_width")
pad8 = doc.addObject("PartDesign::Pad", "Pad007")
body.addObject(pad8)
pad8.Profile = sketch10
pad8.setExpression("Length", "Params.pad8_length")
pad8.Reversed = True

# Sketch on XZ plane
sketch11 = doc.addObject("Sketcher::SketchObject", "Sketch010")
body.addObject(sketch11)
sketch11.AttachmentSupport = (doc.XZ_Plane, [""])
sketch11.MapMode = "FlatFace"
sketch11.AttachmentOffset = App.Placement(App.Vector(0, 0, -7), App.Rotation())
sketch11.addGeometry(Part.LineSegment(App.Vector(36, -45, 0), App.Vector(36, -25, 0)), False)
sketch11.addGeometry(Part.LineSegment(App.Vector(36, -25, 0), App.Vector(56, -25, 0)), False)
sketch11.addGeometry(Part.LineSegment(App.Vector(56, -25, 0), App.Vector(56, -45, 0)), False)
sketch11.addGeometry(Part.LineSegment(App.Vector(56, -45, 0), App.Vector(36, -45, 0)), False)
sketch11.addGeometry(Part.LineSegment(App.Vector(53, -27, 0), App.Vector(38, -27, 0)), False)
sketch11.addGeometry(Part.LineSegment(App.Vector(38, -27, 0), App.Vector(38, -43, 0)), False)
sketch11.addGeometry(Part.LineSegment(App.Vector(38, -43, 0), App.Vector(53, -43, 0)), False)
sketch11.addGeometry(Part.LineSegment(App.Vector(53, -43, 0), App.Vector(53, -27, 0)), False)
sketch11.addConstraint(Sketcher.Constraint("Coincident", 0, 2, 1, 1))
sketch11.addConstraint(Sketcher.Constraint("Coincident", 1, 2, 2, 1))
sketch11.addConstraint(Sketcher.Constraint("Coincident", 2, 2, 3, 1))
sketch11.addConstraint(Sketcher.Constraint("Coincident", 3, 2, 0, 1))
sketch11.addConstraint(Sketcher.Constraint("Coincident", 4, 2, 5, 1))
sketch11.addConstraint(Sketcher.Constraint("Coincident", 5, 2, 6, 1))
sketch11.addConstraint(Sketcher.Constraint("Coincident", 6, 2, 7, 1))
sketch11.addConstraint(Sketcher.Constraint("Coincident", 7, 2, 4, 1))
sketch11.addConstraint(Sketcher.Constraint("Vertical", 0))
sketch11.addConstraint(Sketcher.Constraint("Horizontal", 1))
sketch11.addConstraint(Sketcher.Constraint("Vertical", 2))
sketch11.addConstraint(Sketcher.Constraint("Horizontal", 3))
sketch11.addConstraint(Sketcher.Constraint("Horizontal", 4))
sketch11.addConstraint(Sketcher.Constraint("Vertical", 5))
sketch11.addConstraint(Sketcher.Constraint("Horizontal", 6))
sketch11.addConstraint(Sketcher.Constraint("Vertical", 7))
sketch11.addConstraint(Sketcher.Constraint("Equal", 3, 0))
sketch11.addConstraint(Sketcher.Constraint("Equal", 6, 5))
sketch11.addConstraint(Sketcher.Constraint("DistanceX", 1, 1, 1, 2, Q("20 mm")))
sketch11.addConstraint(Sketcher.Constraint("DistanceX", 4, 2, 4, 1, Q("15.2 mm")))
sketch11.addConstraint(Sketcher.Constraint("DistanceY", 0, 2, -1, 1, Q("25 mm")))
sketch11.addConstraint(Sketcher.Constraint("DistanceX", -1, 1, 0, 2, Q("35.5 mm")))
sketch11.addConstraint(Sketcher.Constraint("DistanceX", -1, 1, 4, 2, Q("37.9 mm")))
sketch11.addConstraint(Sketcher.Constraint("DistanceY", 4, 2, -1, 1, Q("27.4 mm")))
sketch11.setExpression("Constraints[18]", "Params.sketch11_width")
sketch11.setExpression("Constraints[19]", "Params.sketch11_width2")
pad9 = doc.addObject("PartDesign::Pad", "Pad008")
body.addObject(pad9)
pad9.Profile = sketch11
pad9.setExpression("Length", "Params.pad9_length")

# Sketch on XZ plane
sketch12 = doc.addObject("Sketcher::SketchObject", "Sketch011")
body.addObject(sketch12)
sketch12.AttachmentSupport = (doc.XZ_Plane, [""])
sketch12.MapMode = "FlatFace"
sketch12.AttachmentOffset = App.Placement(App.Vector(0, 0, -7), App.Rotation())
sketch12.addGeometry(Part.LineSegment(App.Vector(38, -43, 0), App.Vector(38, -27, 0)), False)
sketch12.addGeometry(Part.LineSegment(App.Vector(38, -27, 0), App.Vector(53, -27, 0)), False)
sketch12.addGeometry(Part.LineSegment(App.Vector(53, -27, 0), App.Vector(53, -43, 0)), False)
sketch12.addGeometry(Part.LineSegment(App.Vector(53, -43, 0), App.Vector(38, -43, 0)), False)
sketch12.addConstraint(Sketcher.Constraint("Coincident", 0, 2, 1, 1))
sketch12.addConstraint(Sketcher.Constraint("Coincident", 1, 2, 2, 1))
sketch12.addConstraint(Sketcher.Constraint("Coincident", 2, 2, 3, 1))
sketch12.addConstraint(Sketcher.Constraint("Coincident", 3, 2, 0, 1))
sketch12.addConstraint(Sketcher.Constraint("Vertical", 0))
sketch12.addConstraint(Sketcher.Constraint("Horizontal", 1))
sketch12.addConstraint(Sketcher.Constraint("Vertical", 2))
sketch12.addConstraint(Sketcher.Constraint("Horizontal", 3))
sketch12.addConstraint(Sketcher.Constraint("Equal", 3, 0))
sketch12.addConstraint(Sketcher.Constraint("DistanceX", 1, 1, 1, 2, Q("15.2 mm")))
sketch12.addConstraint(Sketcher.Constraint("DistanceX", -1, 1, 0, 2, Q("37.9 mm")))
sketch12.addConstraint(Sketcher.Constraint("DistanceY", 0, 2, -1, 1, Q("27.4 mm")))
sketch12.setExpression("Constraints[9]", "Params.sketch12_width")
pad10 = doc.addObject("PartDesign::Pad", "Pad009")
body.addObject(pad10)
pad10.Profile = sketch12
pad10.setExpression("Length", "Params.pad10_length")
doc.recompute()

fillet = doc.addObject("PartDesign::Fillet", "Fillet")
body.addObject(fillet)
fillet.Base = (pad10, edges_at(pad10, [
    (161.95, 3.95, -42.45),
    (147.05, 3.95, -42.45),
    (147.05, 3.95, -27.55),
    (161.95, 3.95, -27.55),
]))
fillet.setExpression("Radius", "Params.fillet_radius")

# Sketch on XZ plane
sketch13 = doc.addObject("Sketcher::SketchObject", "Sketch012")
body.addObject(sketch13)
sketch13.AttachmentSupport = (doc.XZ_Plane, [""])
sketch13.MapMode = "FlatFace"
sketch13.addGeometry(Part.LineSegment(App.Vector(56, -55, 0), App.Vector(56, -45, 0)), False)
sketch13.addGeometry(Part.LineSegment(App.Vector(56, -45, 0), App.Vector(66, -45, 0)), False)
sketch13.addGeometry(Part.LineSegment(App.Vector(66, -45, 0), App.Vector(66, -55, 0)), False)
sketch13.addGeometry(Part.LineSegment(App.Vector(66, -55, 0), App.Vector(56, -55, 0)), False)
sketch13.addConstraint(Sketcher.Constraint("Coincident", 0, 2, 1, 1))
sketch13.addConstraint(Sketcher.Constraint("Coincident", 1, 2, 2, 1))
sketch13.addConstraint(Sketcher.Constraint("Coincident", 2, 2, 3, 1))
sketch13.addConstraint(Sketcher.Constraint("Coincident", 3, 2, 0, 1))
sketch13.addConstraint(Sketcher.Constraint("Vertical", 0))
sketch13.addConstraint(Sketcher.Constraint("Horizontal", 1))
sketch13.addConstraint(Sketcher.Constraint("Vertical", 2))
sketch13.addConstraint(Sketcher.Constraint("Horizontal", 3))
sketch13.addConstraint(Sketcher.Constraint("Equal", 3, 0))
sketch13.addConstraint(Sketcher.Constraint("DistanceX", 1, 1, 1, 2, Q("10 mm")))
sketch13.addConstraint(Sketcher.Constraint("DistanceY", 0, 2, -1, 1, Q("45 mm")))
sketch13.addConstraint(Sketcher.Constraint("DistanceX", -1, 1, 0, 2, Q("55.5 mm")))
sketch13.setExpression("Constraints[9]", "Params.sketch13_width")
pad11 = doc.addObject("PartDesign::Pad", "Pad010")
body.addObject(pad11)
pad11.Profile = sketch13
pad11.setExpression("Length", "Params.pad11_length")
pad11.Reversed = True
doc.recompute()

fillet2 = doc.addObject("PartDesign::Fillet", "Fillet001")
body.addObject(fillet2)
fillet2.Base = (pad11, edges_at(pad11, [
    (164.5, 1.5, -45),
    (164.5, 1.5, -25),
    (35.5, 5.05, -25),
    (65.5, 1.5, -55),
    (55.5, 1.5, -55),
    (97.5, 6, -45),
    (102.5, 6, -45),
    (134.5, 6, -45),
    (144.5, 3.5, 0),
    (144.5, 5, -45),
    (55.5, 3.5, 0),
    (65.5, 6, -45),
]))
fillet2.setExpression("Radius", "Params.fillet2_radius")
doc.recompute()

chamfer = doc.addObject("PartDesign::Chamfer", "Chamfer")
body.addObject(chamfer)
chamfer.Base = (fillet2, edges_at(fillet2, [(45.5, 3.1, -45)]))
chamfer.setExpression("Size", "Params.chamfer_size")

doc.recompute()
